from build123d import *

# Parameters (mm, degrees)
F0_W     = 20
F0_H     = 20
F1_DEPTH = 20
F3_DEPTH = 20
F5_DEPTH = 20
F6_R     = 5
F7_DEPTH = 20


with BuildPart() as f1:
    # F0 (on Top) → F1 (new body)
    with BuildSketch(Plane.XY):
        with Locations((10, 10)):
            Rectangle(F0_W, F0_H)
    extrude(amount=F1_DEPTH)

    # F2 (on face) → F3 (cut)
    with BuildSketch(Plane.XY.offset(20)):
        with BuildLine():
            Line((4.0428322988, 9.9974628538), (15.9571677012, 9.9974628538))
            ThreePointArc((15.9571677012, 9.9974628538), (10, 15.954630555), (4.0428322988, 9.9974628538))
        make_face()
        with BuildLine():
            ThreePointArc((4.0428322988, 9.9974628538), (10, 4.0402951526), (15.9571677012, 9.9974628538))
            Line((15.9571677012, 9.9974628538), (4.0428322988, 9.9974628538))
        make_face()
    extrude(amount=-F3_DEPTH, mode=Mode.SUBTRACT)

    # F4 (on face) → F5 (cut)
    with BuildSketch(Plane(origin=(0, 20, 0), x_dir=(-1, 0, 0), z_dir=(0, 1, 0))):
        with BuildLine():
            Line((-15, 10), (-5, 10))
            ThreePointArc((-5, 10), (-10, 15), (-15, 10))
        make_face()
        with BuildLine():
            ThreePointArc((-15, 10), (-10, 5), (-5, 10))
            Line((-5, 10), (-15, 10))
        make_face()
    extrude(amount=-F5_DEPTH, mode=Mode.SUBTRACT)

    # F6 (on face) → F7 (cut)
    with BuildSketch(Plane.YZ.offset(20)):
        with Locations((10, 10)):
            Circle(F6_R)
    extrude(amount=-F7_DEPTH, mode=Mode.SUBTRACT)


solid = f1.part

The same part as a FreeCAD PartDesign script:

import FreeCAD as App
import Part
import Sketcher
from FreeCAD import Vector
Q = App.Units.Quantity


def add_polygon(sketch, points):
    """Adds a closed chain of lines whose ends are joined by coincident constraints."""
    first, n = sketch.GeometryCount, len(points)
    for a, b in zip(points, points[1:] + points[:1]):
        sketch.addGeometry(Part.LineSegment(App.Vector(*a, 0), App.Vector(*b, 0)), False)
    for i in range(n):
        sketch.addConstraint(Sketcher.Constraint("Coincident", first + i, 2, first + (i + 1) % n, 1))

doc = App.newDocument("Part")
body = doc.addObject("PartDesign::Body", "Body")

sketch1 = doc.addObject("Sketcher::SketchObject", "Sketch")
body.addObject(sketch1)
sketch1.AttachmentSupport = (doc.XY_Plane, [""])
sketch1.MapMode = "FlatFace"
add_polygon(sketch1, [(0, 20), (0, 0), (20, 0), (20, 20)])
sketch1.addConstraint(Sketcher.Constraint("Vertical", 0))
sketch1.addConstraint(Sketcher.Constraint("Horizontal", 1))
sketch1.addConstraint(Sketcher.Constraint("Vertical", 2))
sketch1.addConstraint(Sketcher.Constraint("Horizontal", 3))
sketch1.addConstraint(Sketcher.Constraint("Coincident", 0, 2, -1, 1))
sketch1.addConstraint(Sketcher.Constraint("Equal", 3, 0))
sketch1.addConstraint(Sketcher.Constraint("DistanceX", 1, 1, 1, 2, Q("20 mm")))
pad1 = doc.addObject("PartDesign::Pad", "Pad")
body.addObject(pad1)
pad1.Profile = sketch1
pad1.Length = 20

sketch2 = doc.addObject("Sketcher::SketchObject", "Sketch001")
body.addObject(sketch2)
sketch2.AttachmentSupport = (doc.XY_Plane, [""])
sketch2.MapMode = "FlatFace"
sketch2.AttachmentOffset = App.Placement(Vector(0, 0, 20), App.Rotation())
sketch2.addGeometry(Part.Circle(Vector(10, 10, 0), Vector(0, 0, 1), 6), False)
sketch2.addConstraint(Sketcher.Constraint("DistanceX", -1, 1, 0, 3, Q("10 mm")))
sketch2.addConstraint(Sketcher.Constraint("Diameter", 0, Q("11.914335 mm")))
sketch2.addConstraint(Sketcher.Constraint("DistanceY", -1, 1, 0, 3, Q("9.997463 mm")))
pocket1 = doc.addObject("PartDesign::Pocket", "Pocket")
body.addObject(pocket1)
pocket1.Profile = sketch2
pocket1.Length = 20

sketch3 = doc.addObject("Sketcher::SketchObject", "Sketch002")
body.addObject(sketch3)
sketch3.AttachmentSupport = (doc.XZ_Plane, [""])
sketch3.MapMode = "FlatFace"
sketch3.AttachmentOffset = App.Placement(Vector(0, 0, -20), App.Rotation())
sketch3.addGeometry(Part.Circle(Vector(10, 10, 0), Vector(0, 0, 1), 5), False)
sketch3.addConstraint(Sketcher.Constraint("Diameter", 0, Q("10 mm")))
sketch3.addConstraint(Sketcher.Constraint("DistanceX", -1, 1, 0, 3, Q("10 mm")))
sketch3.addConstraint(Sketcher.Constraint("DistanceY", -1, 1, 0, 3, Q("10 mm")))
pocket2 = doc.addObject("PartDesign::Pocket", "Pocket001")
body.addObject(pocket2)
pocket2.Profile = sketch3
pocket2.Length = 20
pocket2.Reversed = True

sketch4 = doc.addObject("Sketcher::SketchObject", "Sketch003")
body.addObject(sketch4)
sketch4.AttachmentSupport = (doc.YZ_Plane, [""])
sketch4.MapMode = "FlatFace"
sketch4.AttachmentOffset = App.Placement(Vector(0, 0, 20), App.Rotation())
sketch4.addGeometry(Part.Circle(Vector(10, 10, 0), Vector(0, 0, 1), 5), False)
sketch4.addConstraint(Sketcher.Constraint("Diameter", 0, Q("10 mm")))
sketch4.addConstraint(Sketcher.Constraint("DistanceX", -1, 1, 0, 3, Q("10 mm")))
sketch4.addConstraint(Sketcher.Constraint("DistanceY", -1, 1, 0, 3, Q("10 mm")))
pocket3 = doc.addObject("PartDesign::Pocket", "Pocket002")
body.addObject(pocket3)
pocket3.Profile = sketch4
pocket3.Length = 20

doc.recompute()
